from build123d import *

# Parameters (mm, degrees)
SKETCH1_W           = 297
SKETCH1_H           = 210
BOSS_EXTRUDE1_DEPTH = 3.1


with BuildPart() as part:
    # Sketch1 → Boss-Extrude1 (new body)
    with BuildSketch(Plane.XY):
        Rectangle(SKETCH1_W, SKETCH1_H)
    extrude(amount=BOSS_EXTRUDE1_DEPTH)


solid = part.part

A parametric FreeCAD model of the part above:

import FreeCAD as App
import Part
import Sketcher


def add_polygon(sketch, points):
    """Adds a closed chain of lines whose ends are joined by coincident constraints."""
    first, n = sketch.GeometryCount, len(points)
    for a, b in zip(points, points[1:] + points[:1]):
        sketch.addGeometry(Part.LineSegment(App.Vector(*a, 0), App.Vector(*b, 0)), False)
    for i in range(n):
        sketch.addConstraint(Sketcher.Constraint("Coincident", first + i, 2, first + (i + 1) % n, 1))

doc = App.newDocument("Part")
params = doc.addObject("Spreadsheet::Sheet", "Params")
for row, (alias, value) in enumerate([
    ("sketch1_width", "297 mm"),
    ("sketch1_height", "210 mm"),
    ("pad1_length", "3.1 mm"),
], start=1):
    params.set(f"A{row}", alias)
    params.set(f"B{row}", "=" + value)
    params.setAlias(f"B{row}", alias)

body = doc.addObject("PartDesign::Body", "Body")

# Sketch on XY plane
sketch1 = body.newObject("Sketcher::SketchObject", "Sketch")
sketch1.AttachmentSupport = (doc.getObject("XY_Plane"), [""])
sketch1.MapMode = "FlatFace"
add_polygon(sketch1, [(-148, 105), (-148, -105), (148, -105), (148, 105)])  # lines 0-3
sketch1.addConstraint([
    Sketcher.Constraint("Vertical", 0),
    Sketcher.Constraint("Horizontal", 1),
    Sketcher.Constraint("Vertical", 2),
    Sketcher.Constraint("Horizontal", 3),
    Sketcher.Constraint("Symmetric", 0, 2, 2, 2, -1, 1),
    Sketcher.Constraint("DistanceX", 1, 1, 1, 2, 297.0),
    Sketcher.Constraint("DistanceY", 0, 2, 0, 1, 210.0),
])
sketch1.setExpression("Constraints[9]", "Params.sketch1_width")
sketch1.setExpression("Constraints[10]", "Params.sketch1_height")
pad1 = body.newObject("PartDesign::Pad", "Pad")
pad1.Profile = sketch1
pad1.setExpression("Length", "Params.pad1_length")

doc.recompute()
